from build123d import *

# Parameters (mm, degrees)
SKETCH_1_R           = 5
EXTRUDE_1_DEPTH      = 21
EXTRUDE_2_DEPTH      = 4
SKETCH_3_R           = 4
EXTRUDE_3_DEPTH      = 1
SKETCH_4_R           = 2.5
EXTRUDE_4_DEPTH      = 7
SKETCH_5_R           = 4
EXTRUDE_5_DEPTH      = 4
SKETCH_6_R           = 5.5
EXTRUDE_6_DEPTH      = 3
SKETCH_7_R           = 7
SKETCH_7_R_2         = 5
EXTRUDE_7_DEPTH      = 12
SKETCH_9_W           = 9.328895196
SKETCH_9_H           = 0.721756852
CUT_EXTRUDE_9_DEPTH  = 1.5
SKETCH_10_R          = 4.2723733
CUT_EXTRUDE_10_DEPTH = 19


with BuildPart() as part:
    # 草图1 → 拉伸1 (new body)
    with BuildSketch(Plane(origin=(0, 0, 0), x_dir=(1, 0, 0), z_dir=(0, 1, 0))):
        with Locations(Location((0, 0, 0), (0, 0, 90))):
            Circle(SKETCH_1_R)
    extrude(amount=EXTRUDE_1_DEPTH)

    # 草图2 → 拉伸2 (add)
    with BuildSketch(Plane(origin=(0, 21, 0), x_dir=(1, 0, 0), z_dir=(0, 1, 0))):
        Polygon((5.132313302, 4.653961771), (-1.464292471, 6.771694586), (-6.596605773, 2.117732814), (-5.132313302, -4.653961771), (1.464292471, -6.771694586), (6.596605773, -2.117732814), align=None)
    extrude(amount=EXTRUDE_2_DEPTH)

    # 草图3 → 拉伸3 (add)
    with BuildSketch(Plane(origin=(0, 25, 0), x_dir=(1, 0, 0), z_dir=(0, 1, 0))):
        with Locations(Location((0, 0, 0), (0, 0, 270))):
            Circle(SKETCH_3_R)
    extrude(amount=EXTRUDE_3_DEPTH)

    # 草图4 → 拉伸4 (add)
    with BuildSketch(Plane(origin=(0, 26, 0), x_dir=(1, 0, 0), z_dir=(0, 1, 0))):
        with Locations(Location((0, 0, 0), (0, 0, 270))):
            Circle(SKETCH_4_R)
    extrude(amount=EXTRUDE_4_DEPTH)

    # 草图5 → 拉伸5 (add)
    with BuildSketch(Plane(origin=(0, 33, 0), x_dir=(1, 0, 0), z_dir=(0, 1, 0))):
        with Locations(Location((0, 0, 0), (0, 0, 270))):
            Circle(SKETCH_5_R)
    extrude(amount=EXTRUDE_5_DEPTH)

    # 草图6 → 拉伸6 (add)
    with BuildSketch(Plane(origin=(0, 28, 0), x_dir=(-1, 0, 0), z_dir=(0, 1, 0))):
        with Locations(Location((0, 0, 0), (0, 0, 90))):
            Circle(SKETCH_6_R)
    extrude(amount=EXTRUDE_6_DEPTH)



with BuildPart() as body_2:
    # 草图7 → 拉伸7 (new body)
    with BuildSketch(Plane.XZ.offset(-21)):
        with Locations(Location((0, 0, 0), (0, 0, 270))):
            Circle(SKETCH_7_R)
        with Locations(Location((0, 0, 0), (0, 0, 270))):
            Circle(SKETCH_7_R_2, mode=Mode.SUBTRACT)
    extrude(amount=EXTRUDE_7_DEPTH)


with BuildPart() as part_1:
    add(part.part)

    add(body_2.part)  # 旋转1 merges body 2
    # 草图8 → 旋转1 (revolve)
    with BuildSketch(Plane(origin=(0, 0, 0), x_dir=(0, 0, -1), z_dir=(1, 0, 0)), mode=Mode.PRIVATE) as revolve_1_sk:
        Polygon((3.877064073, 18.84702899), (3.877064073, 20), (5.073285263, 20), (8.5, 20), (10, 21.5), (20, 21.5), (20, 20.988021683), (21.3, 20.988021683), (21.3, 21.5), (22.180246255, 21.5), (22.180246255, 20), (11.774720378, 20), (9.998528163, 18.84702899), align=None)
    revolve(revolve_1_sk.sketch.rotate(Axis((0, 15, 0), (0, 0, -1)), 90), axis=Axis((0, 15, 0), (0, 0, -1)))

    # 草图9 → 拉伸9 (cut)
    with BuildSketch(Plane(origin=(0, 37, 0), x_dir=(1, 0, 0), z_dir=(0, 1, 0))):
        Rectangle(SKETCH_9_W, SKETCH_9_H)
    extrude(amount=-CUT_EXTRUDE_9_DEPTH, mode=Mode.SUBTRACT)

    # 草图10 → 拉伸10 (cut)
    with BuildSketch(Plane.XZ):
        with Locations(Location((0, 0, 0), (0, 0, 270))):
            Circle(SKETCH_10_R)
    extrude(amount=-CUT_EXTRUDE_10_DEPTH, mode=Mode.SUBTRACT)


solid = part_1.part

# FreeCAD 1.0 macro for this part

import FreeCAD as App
import Part
import Sketcher
Q = App.Units.Quantity

doc = App.newDocument("Part")
params = doc.addObject("Spreadsheet::Sheet", "Params")
for row, (alias, value) in enumerate([
    ("sketch1_diameter", "10 mm"),
    ("pad1_length", "21 mm"),
    ("pad2_length", "4 mm"),
    ("sketch3_diameter", "8 mm"),
    ("pad3_length", "1 mm"),
    ("sketch4_diameter", "5 mm"),
    ("pad4_length", "7 mm"),
    ("sketch5_diameter", "8 mm"),
    ("pad5_length", "4 mm"),
    ("sketch6_diameter", "11 mm"),
    ("pad6_length", "3 mm"),
    ("sketch7_diameter", "14 mm"),
    ("sketch7_diameter2", "10 mm"),
    ("pad7_length", "12 mm"),
    ("sketch8_height", "10 mm"),
    ("sketch8_width", "1.5 mm"),
    ("sketch8_height2", "1.3 mm"),
    ("revolution_angle", "360 deg"),
    ("pocket1_length", "1.5 mm"),
    ("pocket2_length", "19 mm"),
], start=1):
    params.set(f"A{row}", alias)
    params.set(f"B{row}", "=" + value)
    params.setAlias(f"B{row}", alias)

body = doc.addObject("PartDesign::Body", "Body")

# Sketch on XZ plane
sketch1 = body.newObject("Sketcher::SketchObject", "Sketch")
sketch1.AttachmentSupport = (doc.getObject("XZ_Plane"), [""])
sketch1.MapMode = "FlatFace"
sketch1.addGeometry(Part.Circle(App.Vector(0, 0, 0), App.Vector(0, 0, 1), 5), False)
sketch1.addConstraint(Sketcher.Constraint("Coincident", 0, 3, -1, 1))
sketch1.addConstraint(Sketcher.Constraint("Diameter", 0, Q("10 mm")))
sketch1.setExpression("Constraints[1]", "Params.sketch1_diameter")
pad1 = body.newObject("PartDesign::Pad", "Pad")
pad1.Profile = sketch1
pad1.setExpression("Length", "Params.pad1_length")
pad1.Reversed = True

# Sketch on XZ plane
sketch2 = body.newObject("Sketcher::SketchObject", "Sketch001")
sketch2.AttachmentSupport = (doc.getObject("XZ_Plane"), [""])
sketch2.MapMode = "FlatFace"
sketch2.AttachmentOffset = App.Placement(App.Vector(0, 0, -21), App.Rotation())
sketch2.addGeometry(Part.LineSegment(App.Vector(5, -5, 0), App.Vector(-1, -7, 0)), False)
sketch2.addGeometry(Part.LineSegment(App.Vector(-1, -7, 0), App.Vector(-7, -2, 0)), False)
sketch2.addGeometry(Part.LineSegment(App.Vector(-7, -2, 0), App.Vector(-5, 5, 0)), False)
sketch2.addGeometry(Part.LineSegment(App.Vector(-5, 5, 0), App.Vector(1, 7, 0)), False)
sketch2.addGeometry(Part.LineSegment(App.Vector(1, 7, 0), App.Vector(7, 2, 0)), False)
sketch2.addGeometry(Part.LineSegment(App.Vector(7, 2, 0), App.Vector(5, -5, 0)), False)
sketch2.addConstraint(Sketcher.Constraint("Coincident", 0, 2, 1, 1))
sketch2.addConstraint(Sketcher.Constraint("Coincident", 1, 2, 2, 1))
sketch2.addConstraint(Sketcher.Constraint("Coincident", 2, 2, 3, 1))
sketch2.addConstraint(Sketcher.Constraint("Coincident", 3, 2, 4, 1))
sketch2.addConstraint(Sketcher.Constraint("Coincident", 4, 2, 5, 1))
sketch2.addConstraint(Sketcher.Constraint("Coincident", 5, 2, 0, 1))
sketch2.addConstraint(Sketcher.Constraint("Symmetric", 0, 2, 3, 2, -1, 1))
sketch2.addConstraint(Sketcher.Constraint("Symmetric", 1, 2, 4, 2, -1, 1))
sketch2.addConstraint(Sketcher.Constraint("Symmetric", 2, 2, 5, 2, -1, 1))
sketch2.addConstraint(Sketcher.Constraint("Equal", 0, 1))
sketch2.addConstraint(Sketcher.Constraint("Equal", 1, 2))
sketch2.addConstraint(Sketcher.Constraint("DistanceX", 1, 2, 3, 2, Q("8.060898 mm")))
sketch2.addConstraint(Sketcher.Constraint("DistanceY", -1, 1, 2, 2, Q("4.653962 mm")))
sketch2.addConstraint(Sketcher.Constraint("DistanceY", 0, 2, 1, 2, Q("4.653962 mm")))
sketch2.addConstraint(Sketcher.Constraint("DistanceX", 2, 2, 0, 2, Q("3.668021 mm")))
pad2 = body.newObject("PartDesign::Pad", "Pad001")
pad2.Profile = sketch2
pad2.setExpression("Length", "Params.pad2_length")
pad2.Reversed = True

# Sketch on XZ plane
sketch3 = body.newObject("Sketcher::SketchObject", "Sketch002")
sketch3.AttachmentSupport = (doc.getObject("XZ_Plane"), [""])
sketch3.MapMode = "FlatFace"
sketch3.AttachmentOffset = App.Placement(App.Vector(0, 0, -25), App.Rotation())
sketch3.addGeometry(Part.Circle(App.Vector(0, 0, 0), App.Vector(0, 0, 1), 4), False)
sketch3.addConstraint(Sketcher.Constraint("Coincident", 0, 3, -1, 1))
sketch3.addConstraint(Sketcher.Constraint("Diameter", 0, Q("8 mm")))
sketch3.setExpression("Constraints[1]", "Params.sketch3_diameter")
pad3 = body.newObject("PartDesign::Pad", "Pad002")
pad3.Profile = sketch3
pad3.setExpression("Length", "Params.pad3_length")
pad3.Reversed = True

# Sketch on XZ plane
sketch4 = body.newObject("Sketcher::SketchObject", "Sketch003")
sketch4.AttachmentSupport = (doc.getObject("XZ_Plane"), [""])
sketch4.MapMode = "FlatFace"
sketch4.AttachmentOffset = App.Placement(App.Vector(0, 0, -26), App.Rotation())
sketch4.addGeometry(Part.Circle(App.Vector(0, 0, 0), App.Vector(0, 0, 1), 2.5), False)
sketch4.addConstraint(Sketcher.Constraint("Coincident", 0, 3, -1, 1))
sketch4.addConstraint(Sketcher.Constraint("Diameter", 0, Q("5 mm")))
sketch4.setExpression("Constraints[1]", "Params.sketch4_diameter")
pad4 = body.newObject("PartDesign::Pad", "Pad003")
pad4.Profile = sketch4
pad4.setExpression("Length", "Params.pad4_length")
pad4.Reversed = True

# Sketch on XZ plane
sketch5 = body.newObject("Sketcher::SketchObject", "Sketch004")
sketch5.AttachmentSupport = (doc.getObject("XZ_Plane"), [""])
sketch5.MapMode = "FlatFace"
sketch5.AttachmentOffset = App.Placement(App.Vector(0, 0, -33), App.Rotation())
sketch5.addGeometry(Part.Circle(App.Vector(0, 0, 0), App.Vector(0, 0, 1), 4), False)
sketch5.addConstraint(Sketcher.Constraint("Coincident", 0, 3, -1, 1))
sketch5.addConstraint(Sketcher.Constraint("Diameter", 0, Q("8 mm")))
sketch5.setExpression("Constraints[1]", "Params.sketch5_diameter")
pad5 = body.newObject("PartDesign::Pad", "Pad004")
pad5.Profile = sketch5
pad5.setExpression("Length", "Params.pad5_length")
pad5.Reversed = True

# Sketch on XZ plane
sketch6 = body.newObject("Sketcher::SketchObject", "Sketch005")
sketch6.AttachmentSupport = (doc.getObject("XZ_Plane"), [""])
sketch6.MapMode = "FlatFace"
sketch6.AttachmentOffset = App.Placement(App.Vector(0, 0, -28), App.Rotation())
sketch6.addGeometry(Part.Circle(App.Vector(0, 0, 0), App.Vector(0, 0, 1), 6), False)
sketch6.addConstraint(Sketcher.Constraint("Coincident", 0, 3, -1, 1))
sketch6.addConstraint(Sketcher.Constraint("Diameter", 0, Q("11 mm")))
sketch6.setExpression("Constraints[1]", "Params.sketch6_diameter")
pad6 = body.newObject("PartDesign::Pad", "Pad005")
pad6.Profile = sketch6
pad6.setExpression("Length", "Params.pad6_length")
pad6.Reversed = True
body2 = doc.addObject("PartDesign::Body", "Body001")

# Sketch on XZ plane
sketch7 = body2.newObject("Sketcher::SketchObject", "Sketch006")
sketch7.AttachmentSupport = (doc.getObject("XZ_Plane001"), [""])
sketch7.MapMode = "FlatFace"
sketch7.AttachmentOffset = App.Placement(App.Vector(0, 0, -21), App.Rotation())
sketch7.addGeometry(Part.Circle(App.Vector(0, 0, 0), App.Vector(0, 0, 1), 7), False)
sketch7.addGeometry(Part.Circle(App.Vector(0, 0, 0), App.Vector(0, 0, 1), 5), False)
sketch7.addConstraint(Sketcher.Constraint("Coincident", 0, 3, -1, 1))
sketch7.addConstraint(Sketcher.Constraint("Coincident", 1, 3, -1, 1))
sketch7.addConstraint(Sketcher.Constraint("Diameter", 0, Q("14 mm")))
sketch7.addConstraint(Sketcher.Constraint("Diameter", 1, Q("10 mm")))
sketch7.setExpression("Constraints[2]", "Params.sketch7_diameter")
sketch7.setExpression("Constraints[3]", "Params.sketch7_diameter2")
pad7 = body2.newObject("PartDesign::Pad", "Pad006")
pad7.Profile = sketch7
pad7.setExpression("Length", "Params.pad7_length")
doc.recompute()

boolean = body.newObject("PartDesign::Boolean", "Boolean")
boolean.Type = "Fuse"
boolean.addObjects([body2])

# Sketch on YZ plane
sketch8 = body.newObject("Sketcher::SketchObject", "Sketch007")
sketch8.AttachmentSupport = (doc.getObject("YZ_Plane"), [""])
sketch8.MapMode = "FlatFace"
sketch8.addGeometry(Part.LineSegment(App.Vector(20, -3.9, 0), App.Vector(18.8, -3.9, 0)), False)
sketch8.addGeometry(Part.LineSegment(App.Vector(18.8, -3.9, 0), App.Vector(18.8, -10, 0)), False)
sketch8.addGeometry(Part.LineSegment(App.Vector(18.8, -10, 0), App.Vector(20, -11.8, 0)), False)
sketch8.addGeometry(Part.LineSegment(App.Vector(20, -11.8, 0), App.Vector(20, -22.2, 0)), False)
sketch8.addGeometry(Part.LineSegment(App.Vector(20, -22.2, 0), App.Vector(21.5, -22.2, 0)), False)
sketch8.addGeometry(Part.LineSegment(App.Vector(21.5, -22.2, 0), App.Vector(21.5, -21.3, 0)), False)
sketch8.addGeometry(Part.LineSegment(App.Vector(21.5, -21.3, 0), App.Vector(21, -21.3, 0)), False)
sketch8.addGeometry(Part.LineSegment(App.Vector(21, -21.3, 0), App.Vector(21, -20, 0)), False)
sketch8.addGeometry(Part.LineSegment(App.Vector(21, -20, 0), App.Vector(21.5, -20, 0)), False)
sketch8.addGeometry(Part.LineSegment(App.Vector(21.5, -20, 0), App.Vector(21.5, -10, 0)), False)
sketch8.addGeometry(Part.LineSegment(App.Vector(21.5, -10, 0), App.Vector(20, -8.5, 0)), False)
sketch8.addGeometry(Part.LineSegment(App.Vector(20, -8.5, 0), App.Vector(20, -3.9, 0)), False)
sketch8.addGeometry(Part.LineSegment(App.Vector(15, -3.9, 0), App.Vector(15, -22.2, 0)), True)  # axis
sketch8.addConstraint(Sketcher.Constraint("Coincident", 0, 2, 1, 1))
sketch8.addConstraint(Sketcher.Constraint("Coincident", 1, 2, 2, 1))
sketch8.addConstraint(Sketcher.Constraint("Coincident", 2, 2, 3, 1))
sketch8.addConstraint(Sketcher.Constraint("Coincident", 3, 2, 4, 1))
sketch8.addConstraint(Sketcher.Constraint("Coincident", 4, 2, 5, 1))
sketch8.addConstraint(Sketcher.Constraint("Coincident", 5, 2, 6, 1))
sketch8.addConstraint(Sketcher.Constraint("Coincident", 6, 2, 7, 1))
sketch8.addConstraint(Sketcher.Constraint("Coincident", 7, 2, 8, 1))
sketch8.addConstraint(Sketcher.Constraint("Coincident", 8, 2, 9, 1))
sketch8.addConstraint(Sketcher.Constraint("Coincident", 9, 2, 10, 1))
sketch8.addConstraint(Sketcher.Constraint("Coincident", 10, 2, 11, 1))
sketch8.addConstraint(Sketcher.Constraint("Coincident", 11, 2, 0, 1))
sketch8.addConstraint(Sketcher.Constraint("Horizontal", 0))
sketch8.addConstraint(Sketcher.Constraint("Vertical", 1))
sketch8.addConstraint(Sketcher.Constraint("Vertical", 3))
sketch8.addConstraint(Sketcher.Constraint("Horizontal", 4))
sketch8.addConstraint(Sketcher.Constraint("Vertical", 5))
sketch8.addConstraint(Sketcher.Constraint("Horizontal", 6))
sketch8.addConstraint(Sketcher.Constraint("Vertical", 7))
sketch8.addConstraint(Sketcher.Constraint("Horizontal", 8))
sketch8.addConstraint(Sketcher.Constraint("Vertical", 9))
sketch8.addConstraint(Sketcher.Constraint("Vertical", 11))
sketch8.addConstraint(Sketcher.Constraint("Vertical", 12))
sketch8.addConstraint(Sketcher.Constraint("Horizontal", 11, 2, 12, 1))
sketch8.addConstraint(Sketcher.Constraint("Horizontal", 4, 2, 12, 2))
sketch8.addConstraint(Sketcher.Constraint("Vertical", 5, 2, 8, 2))
sketch8.addConstraint(Sketcher.Constraint("Vertical", 3, 2, 10, 2))
sketch8.addConstraint(Sketcher.Constraint("DistanceY", 9, 1, 9, 2, Q("10 mm")))
sketch8.addConstraint(Sketcher.Constraint("Angle", 10, Q("135 deg")))
sketch8.addConstraint(Sketcher.Constraint("DistanceX", 4, 1, 4, 2, Q("1.5 mm")))
sketch8.addConstraint(Sketcher.Constraint("DistanceY", 7, 1, 7, 2, Q("1.3 mm")))
sketch8.addConstraint(Sketcher.Constraint("DistanceX", -1, 1, 2, 2, Q("20 mm")))
sketch8.addConstraint(Sketcher.Constraint("DistanceY", 7, 2, -1, 1, Q("20 mm")))
sketch8.addConstraint(Sketcher.Constraint("DistanceX", -1, 1, 12, 1, Q("15 mm")))
sketch8.addConstraint(Sketcher.Constraint("DistanceX", 0, 2, 0, 1, Q("1.152971 mm")))
sketch8.addConstraint(Sketcher.Constraint("DistanceX", 6, 2, 6, 1, Q("0.511978 mm")))
sketch8.addConstraint(Sketcher.Constraint("DistanceY", 1, 2, 1, 1, Q("6.121464 mm")))
sketch8.addConstraint(Sketcher.Constraint("DistanceY", 3, 2, 3, 1, Q("10.405526 mm")))
sketch8.addConstraint(Sketcher.Constraint("DistanceY", 5, 1, 5, 2, Q("0.880246 mm")))
sketch8.addConstraint(Sketcher.Constraint("DistanceY", 11, 1, 11, 2, Q("4.622936 mm")))
sketch8.setExpression("Constraints[27]", "Params.sketch8_height")
sketch8.setExpression("Constraints[29]", "Params.sketch8_width")
sketch8.setExpression("Constraints[30]", "Params.sketch8_height2")
revolution = body.newObject("PartDesign::Revolution", "Revolution")
revolution.Profile = sketch8
revolution.ReferenceAxis = (sketch8, ["Axis0"])
revolution.setExpression("Angle", "Params.revolution_angle")

# Sketch on XZ plane
sketch9 = body.newObject("Sketcher::SketchObject", "Sketch008")
sketch9.AttachmentSupport = (doc.getObject("XZ_Plane"), [""])
sketch9.MapMode = "FlatFace"
sketch9.AttachmentOffset = App.Placement(App.Vector(0, 0, -37), App.Rotation())
sketch9.addGeometry(Part.LineSegment(App.Vector(-4.7, -0.4, 0), App.Vector(-4.7, 0.4, 0)), False)
sketch9.addGeometry(Part.LineSegment(App.Vector(-4.7, 0.4, 0), App.Vector(4.7, 0.4, 0)), False)
sketch9.addGeometry(Part.LineSegment(App.Vector(4.7, 0.4, 0), App.Vector(4.7, -0.4, 0)), False)
sketch9.addGeometry(Part.LineSegment(App.Vector(4.7, -0.4, 0), App.Vector(-4.7, -0.4, 0)), False)
sketch9.addConstraint(Sketcher.Constraint("Coincident", 0, 2, 1, 1))
sketch9.addConstraint(Sketcher.Constraint("Coincident", 1, 2, 2, 1))
sketch9.addConstraint(Sketcher.Constraint("Coincident", 2, 2, 3, 1))
sketch9.addConstraint(Sketcher.Constraint("Coincident", 3, 2, 0, 1))
sketch9.addConstraint(Sketcher.Constraint("Vertical", 0))
sketch9.addConstraint(Sketcher.Constraint("Horizontal", 1))
sketch9.addConstraint(Sketcher.Constraint("Vertical", 2))
sketch9.addConstraint(Sketcher.Constraint("Horizontal", 3))
sketch9.addConstraint(Sketcher.Constraint("Symmetric", 0, 2, 2, 2, -1, 1))
sketch9.addConstraint(Sketcher.Constraint("DistanceX", 1, 1, 1, 2, Q("9.328895 mm")))
sketch9.addConstraint(Sketcher.Constraint("DistanceY", 0, 1, 0, 2, Q("0.721757 mm")))
pocket1 = body.newObject("PartDesign::Pocket", "Pocket")
pocket1.Profile = sketch9
pocket1.setExpression("Length", "Params.pocket1_length")
pocket1.Reversed = True

# Sketch on XZ plane
sketch10 = body.newObject("Sketcher::SketchObject", "Sketch009")
sketch10.AttachmentSupport = (doc.getObject("XZ_Plane"), [""])
sketch10.MapMode = "FlatFace"
sketch10.addGeometry(Part.Circle(App.Vector(0, 0, 0), App.Vector(0, 0, 1), 4.3), False)
sketch10.addConstraint(Sketcher.Constraint("Coincident", 0, 3, -1, 1))
sketch10.addConstraint(Sketcher.Constraint("Diameter", 0, Q("8.544747 mm")))
pocket2 = body.newObject("PartDesign::Pocket", "Pocket001")
pocket2.Profile = sketch10
pocket2.setExpression("Length", "Params.pocket2_length")

doc.recompute()
